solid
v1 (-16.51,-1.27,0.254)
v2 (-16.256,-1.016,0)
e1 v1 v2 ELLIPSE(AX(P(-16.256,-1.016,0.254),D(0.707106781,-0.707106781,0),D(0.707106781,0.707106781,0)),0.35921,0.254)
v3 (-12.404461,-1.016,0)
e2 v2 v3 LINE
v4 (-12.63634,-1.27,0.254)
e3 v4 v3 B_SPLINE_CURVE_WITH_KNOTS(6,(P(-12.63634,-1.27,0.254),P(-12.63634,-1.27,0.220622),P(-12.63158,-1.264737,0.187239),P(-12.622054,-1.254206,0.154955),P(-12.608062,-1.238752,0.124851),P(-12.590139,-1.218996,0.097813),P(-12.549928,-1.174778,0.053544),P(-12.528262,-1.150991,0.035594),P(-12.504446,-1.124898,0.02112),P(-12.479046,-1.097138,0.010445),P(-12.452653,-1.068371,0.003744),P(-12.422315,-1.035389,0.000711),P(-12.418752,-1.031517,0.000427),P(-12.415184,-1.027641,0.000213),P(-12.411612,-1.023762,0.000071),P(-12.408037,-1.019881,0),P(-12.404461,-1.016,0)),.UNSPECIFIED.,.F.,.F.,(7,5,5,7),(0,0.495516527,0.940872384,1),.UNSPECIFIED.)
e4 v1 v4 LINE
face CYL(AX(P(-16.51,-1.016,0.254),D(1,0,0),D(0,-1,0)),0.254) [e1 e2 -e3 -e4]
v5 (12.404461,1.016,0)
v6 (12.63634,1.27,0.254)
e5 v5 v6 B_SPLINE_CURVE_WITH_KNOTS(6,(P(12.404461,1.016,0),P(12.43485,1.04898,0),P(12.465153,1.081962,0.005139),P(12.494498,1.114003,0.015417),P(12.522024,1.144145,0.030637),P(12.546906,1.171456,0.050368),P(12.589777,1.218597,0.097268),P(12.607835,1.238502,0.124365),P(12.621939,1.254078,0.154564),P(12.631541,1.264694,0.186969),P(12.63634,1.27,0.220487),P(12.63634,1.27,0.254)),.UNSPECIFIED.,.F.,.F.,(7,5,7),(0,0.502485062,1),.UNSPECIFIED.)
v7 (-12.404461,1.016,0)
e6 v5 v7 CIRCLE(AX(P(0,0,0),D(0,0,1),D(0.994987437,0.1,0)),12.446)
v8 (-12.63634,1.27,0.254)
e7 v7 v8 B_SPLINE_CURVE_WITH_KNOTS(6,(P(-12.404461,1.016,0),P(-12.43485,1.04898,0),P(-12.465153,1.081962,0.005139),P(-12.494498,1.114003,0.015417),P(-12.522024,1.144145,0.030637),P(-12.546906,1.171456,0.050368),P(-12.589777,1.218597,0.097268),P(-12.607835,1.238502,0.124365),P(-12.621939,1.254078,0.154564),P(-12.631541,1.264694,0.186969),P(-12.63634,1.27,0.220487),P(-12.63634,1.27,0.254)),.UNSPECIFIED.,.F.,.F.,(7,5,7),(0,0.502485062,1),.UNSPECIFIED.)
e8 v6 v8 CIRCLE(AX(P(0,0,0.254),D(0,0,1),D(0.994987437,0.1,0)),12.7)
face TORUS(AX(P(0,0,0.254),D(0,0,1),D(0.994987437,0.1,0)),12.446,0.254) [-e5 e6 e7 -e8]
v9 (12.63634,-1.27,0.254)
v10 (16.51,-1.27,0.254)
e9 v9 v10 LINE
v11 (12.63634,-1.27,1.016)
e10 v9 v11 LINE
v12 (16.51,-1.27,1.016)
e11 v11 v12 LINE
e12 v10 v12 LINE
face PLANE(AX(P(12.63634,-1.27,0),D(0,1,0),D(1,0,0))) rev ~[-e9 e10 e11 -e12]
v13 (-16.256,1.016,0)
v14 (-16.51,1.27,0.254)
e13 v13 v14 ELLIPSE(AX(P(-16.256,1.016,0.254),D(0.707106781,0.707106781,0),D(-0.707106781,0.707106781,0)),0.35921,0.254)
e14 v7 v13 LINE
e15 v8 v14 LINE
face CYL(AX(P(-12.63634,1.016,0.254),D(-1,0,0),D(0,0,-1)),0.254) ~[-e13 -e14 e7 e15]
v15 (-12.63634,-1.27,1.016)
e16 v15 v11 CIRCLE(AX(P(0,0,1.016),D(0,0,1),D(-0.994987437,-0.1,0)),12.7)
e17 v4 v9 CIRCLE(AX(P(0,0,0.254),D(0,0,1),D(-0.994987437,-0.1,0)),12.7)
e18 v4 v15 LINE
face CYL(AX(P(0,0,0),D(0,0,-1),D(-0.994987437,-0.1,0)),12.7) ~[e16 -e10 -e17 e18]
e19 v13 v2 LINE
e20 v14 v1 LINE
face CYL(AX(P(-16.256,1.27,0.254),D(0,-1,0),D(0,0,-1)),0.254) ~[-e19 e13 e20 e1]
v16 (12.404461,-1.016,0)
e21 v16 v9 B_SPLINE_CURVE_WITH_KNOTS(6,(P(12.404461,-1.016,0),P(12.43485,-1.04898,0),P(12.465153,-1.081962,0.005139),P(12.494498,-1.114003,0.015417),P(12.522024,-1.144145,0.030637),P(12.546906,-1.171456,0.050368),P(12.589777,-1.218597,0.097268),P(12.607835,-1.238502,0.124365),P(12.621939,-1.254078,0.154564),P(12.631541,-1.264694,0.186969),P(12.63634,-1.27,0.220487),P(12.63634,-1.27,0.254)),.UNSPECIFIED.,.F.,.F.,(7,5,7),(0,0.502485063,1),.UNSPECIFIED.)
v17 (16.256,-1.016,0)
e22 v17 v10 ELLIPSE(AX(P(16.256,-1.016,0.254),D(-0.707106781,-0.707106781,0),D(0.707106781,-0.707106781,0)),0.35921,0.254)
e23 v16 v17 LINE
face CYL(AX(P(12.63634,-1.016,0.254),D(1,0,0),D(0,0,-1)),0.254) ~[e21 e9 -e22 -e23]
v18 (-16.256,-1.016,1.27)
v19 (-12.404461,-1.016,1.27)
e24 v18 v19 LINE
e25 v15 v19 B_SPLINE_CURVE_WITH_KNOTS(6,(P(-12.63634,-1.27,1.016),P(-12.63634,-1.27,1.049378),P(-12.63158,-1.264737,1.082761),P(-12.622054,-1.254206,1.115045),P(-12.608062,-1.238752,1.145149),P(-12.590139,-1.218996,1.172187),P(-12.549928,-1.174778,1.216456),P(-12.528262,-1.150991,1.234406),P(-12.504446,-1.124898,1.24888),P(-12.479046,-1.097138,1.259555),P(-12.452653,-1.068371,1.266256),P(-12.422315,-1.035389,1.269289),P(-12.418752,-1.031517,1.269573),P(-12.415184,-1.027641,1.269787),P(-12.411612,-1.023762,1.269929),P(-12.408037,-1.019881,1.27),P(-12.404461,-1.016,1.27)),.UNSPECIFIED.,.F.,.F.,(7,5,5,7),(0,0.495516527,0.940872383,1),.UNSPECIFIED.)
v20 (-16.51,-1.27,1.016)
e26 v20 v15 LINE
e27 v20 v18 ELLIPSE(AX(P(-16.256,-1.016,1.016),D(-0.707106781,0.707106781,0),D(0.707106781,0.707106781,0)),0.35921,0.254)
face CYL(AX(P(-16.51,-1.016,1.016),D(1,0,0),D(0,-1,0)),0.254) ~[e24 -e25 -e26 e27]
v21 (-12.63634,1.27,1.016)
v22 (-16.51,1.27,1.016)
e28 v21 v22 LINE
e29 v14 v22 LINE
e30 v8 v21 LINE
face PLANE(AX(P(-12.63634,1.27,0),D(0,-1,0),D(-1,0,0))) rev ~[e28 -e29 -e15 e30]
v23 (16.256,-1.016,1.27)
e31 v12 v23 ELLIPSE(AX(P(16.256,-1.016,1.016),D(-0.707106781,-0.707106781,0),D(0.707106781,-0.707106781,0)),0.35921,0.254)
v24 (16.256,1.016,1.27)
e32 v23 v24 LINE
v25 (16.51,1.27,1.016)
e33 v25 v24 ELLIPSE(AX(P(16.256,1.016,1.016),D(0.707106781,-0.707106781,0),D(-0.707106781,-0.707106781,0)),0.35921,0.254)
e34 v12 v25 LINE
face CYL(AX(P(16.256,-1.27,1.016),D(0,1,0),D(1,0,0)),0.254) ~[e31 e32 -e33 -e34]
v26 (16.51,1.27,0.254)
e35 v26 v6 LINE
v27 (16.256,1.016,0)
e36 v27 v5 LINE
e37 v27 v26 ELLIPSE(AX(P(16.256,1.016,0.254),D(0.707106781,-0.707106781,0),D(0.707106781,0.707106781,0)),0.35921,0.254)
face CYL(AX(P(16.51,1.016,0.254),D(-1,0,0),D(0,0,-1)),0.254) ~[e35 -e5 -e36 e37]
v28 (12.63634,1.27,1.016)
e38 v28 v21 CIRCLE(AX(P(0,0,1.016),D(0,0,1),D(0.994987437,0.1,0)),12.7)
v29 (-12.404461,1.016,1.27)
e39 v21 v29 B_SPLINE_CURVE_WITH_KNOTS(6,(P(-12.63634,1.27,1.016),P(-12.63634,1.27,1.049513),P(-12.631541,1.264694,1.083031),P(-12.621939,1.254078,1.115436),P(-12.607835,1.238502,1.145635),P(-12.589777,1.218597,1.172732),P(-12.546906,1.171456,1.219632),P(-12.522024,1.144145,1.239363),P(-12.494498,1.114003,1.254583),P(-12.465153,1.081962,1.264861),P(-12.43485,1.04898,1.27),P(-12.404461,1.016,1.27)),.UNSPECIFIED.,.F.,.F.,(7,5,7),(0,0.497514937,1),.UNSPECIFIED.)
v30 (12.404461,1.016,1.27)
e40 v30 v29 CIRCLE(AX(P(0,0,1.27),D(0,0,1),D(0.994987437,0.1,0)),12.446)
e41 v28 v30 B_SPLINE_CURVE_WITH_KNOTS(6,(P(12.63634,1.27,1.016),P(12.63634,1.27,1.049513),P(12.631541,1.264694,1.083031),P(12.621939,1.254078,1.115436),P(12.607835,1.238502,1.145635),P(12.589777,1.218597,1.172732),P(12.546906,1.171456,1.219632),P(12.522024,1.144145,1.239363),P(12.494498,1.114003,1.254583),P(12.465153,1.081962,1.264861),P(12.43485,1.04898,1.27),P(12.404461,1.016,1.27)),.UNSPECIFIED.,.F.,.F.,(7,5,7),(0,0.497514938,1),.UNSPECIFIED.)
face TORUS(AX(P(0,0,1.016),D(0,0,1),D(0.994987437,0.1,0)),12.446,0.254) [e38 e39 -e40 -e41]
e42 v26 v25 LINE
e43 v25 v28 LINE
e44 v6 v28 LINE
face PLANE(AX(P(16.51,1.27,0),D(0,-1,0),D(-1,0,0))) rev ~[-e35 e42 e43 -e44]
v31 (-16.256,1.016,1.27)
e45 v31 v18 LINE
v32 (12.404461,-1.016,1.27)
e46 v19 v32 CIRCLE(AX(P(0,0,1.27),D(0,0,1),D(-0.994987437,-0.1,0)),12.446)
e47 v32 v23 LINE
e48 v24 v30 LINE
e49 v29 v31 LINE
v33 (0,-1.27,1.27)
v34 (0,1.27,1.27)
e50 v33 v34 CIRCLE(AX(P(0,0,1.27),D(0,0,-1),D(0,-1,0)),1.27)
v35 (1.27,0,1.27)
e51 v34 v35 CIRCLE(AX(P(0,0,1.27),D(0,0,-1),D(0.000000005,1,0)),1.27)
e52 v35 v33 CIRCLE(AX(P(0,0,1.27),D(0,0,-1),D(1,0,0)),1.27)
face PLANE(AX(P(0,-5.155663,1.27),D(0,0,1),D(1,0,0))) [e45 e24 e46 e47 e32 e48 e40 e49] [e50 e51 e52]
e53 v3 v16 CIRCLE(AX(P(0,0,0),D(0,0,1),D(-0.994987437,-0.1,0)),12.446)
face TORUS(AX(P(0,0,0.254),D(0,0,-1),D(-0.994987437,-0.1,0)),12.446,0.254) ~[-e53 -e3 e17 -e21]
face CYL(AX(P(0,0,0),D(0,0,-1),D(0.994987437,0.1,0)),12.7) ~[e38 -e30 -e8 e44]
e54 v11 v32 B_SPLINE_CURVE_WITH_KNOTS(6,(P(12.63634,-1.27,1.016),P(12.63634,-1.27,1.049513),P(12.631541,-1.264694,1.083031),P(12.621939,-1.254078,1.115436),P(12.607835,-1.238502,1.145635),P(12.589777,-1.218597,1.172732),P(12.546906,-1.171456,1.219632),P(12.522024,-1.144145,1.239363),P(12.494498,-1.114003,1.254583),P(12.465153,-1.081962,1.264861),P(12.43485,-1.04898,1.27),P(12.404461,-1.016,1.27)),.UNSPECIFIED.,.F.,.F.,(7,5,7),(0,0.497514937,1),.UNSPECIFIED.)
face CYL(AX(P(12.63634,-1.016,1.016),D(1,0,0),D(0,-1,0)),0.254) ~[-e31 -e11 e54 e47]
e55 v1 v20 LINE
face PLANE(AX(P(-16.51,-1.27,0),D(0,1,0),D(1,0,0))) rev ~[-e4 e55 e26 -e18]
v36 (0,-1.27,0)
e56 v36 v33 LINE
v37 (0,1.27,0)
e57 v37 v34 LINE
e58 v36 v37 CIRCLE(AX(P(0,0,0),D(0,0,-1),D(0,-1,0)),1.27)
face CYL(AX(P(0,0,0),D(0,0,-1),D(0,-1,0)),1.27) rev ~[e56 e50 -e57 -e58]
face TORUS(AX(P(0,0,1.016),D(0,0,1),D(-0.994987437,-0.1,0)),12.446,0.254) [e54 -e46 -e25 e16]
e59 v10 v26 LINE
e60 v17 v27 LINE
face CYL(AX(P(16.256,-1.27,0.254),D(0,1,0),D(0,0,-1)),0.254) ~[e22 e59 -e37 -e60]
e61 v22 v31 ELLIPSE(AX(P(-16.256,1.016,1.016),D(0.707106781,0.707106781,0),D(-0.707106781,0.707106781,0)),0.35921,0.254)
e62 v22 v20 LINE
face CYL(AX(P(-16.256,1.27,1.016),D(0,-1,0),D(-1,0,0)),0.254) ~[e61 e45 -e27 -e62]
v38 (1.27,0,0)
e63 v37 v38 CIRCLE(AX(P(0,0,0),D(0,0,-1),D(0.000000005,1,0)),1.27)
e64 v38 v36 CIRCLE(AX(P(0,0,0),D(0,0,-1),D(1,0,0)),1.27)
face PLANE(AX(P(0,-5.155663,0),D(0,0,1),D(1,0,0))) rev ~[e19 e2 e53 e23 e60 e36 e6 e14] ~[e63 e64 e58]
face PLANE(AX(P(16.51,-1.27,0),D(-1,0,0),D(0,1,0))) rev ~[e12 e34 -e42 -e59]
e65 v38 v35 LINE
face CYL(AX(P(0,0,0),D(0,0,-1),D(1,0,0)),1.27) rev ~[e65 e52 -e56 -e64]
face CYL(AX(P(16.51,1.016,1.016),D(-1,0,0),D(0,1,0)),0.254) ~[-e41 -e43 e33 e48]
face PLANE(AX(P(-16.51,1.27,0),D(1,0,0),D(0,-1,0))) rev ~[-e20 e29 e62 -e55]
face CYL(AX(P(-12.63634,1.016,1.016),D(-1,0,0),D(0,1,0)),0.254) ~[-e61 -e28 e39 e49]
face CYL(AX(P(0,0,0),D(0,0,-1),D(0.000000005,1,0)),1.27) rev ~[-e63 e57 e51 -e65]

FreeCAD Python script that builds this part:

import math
import FreeCAD as App
import Part
import Sketcher
Q = App.Units.Quantity


def edges_at(feature, points):
    """Names of the edges that pass closest to the given points."""
    edges = feature.Shape.Edges
    near = lambda p: min(range(len(edges)), key=lambda i: edges[i].distToShape(Part.Vertex(*p))[0])
    return sorted({f"Edge{near(p) + 1}" for p in points})

doc = App.newDocument("Part")
body = doc.addObject("PartDesign::Body", "Body")

# Sketch on XY plane
sketch1 = body.newObject("Sketcher::SketchObject", "Sketch")
sketch1.AttachmentSupport = (doc.getObject("XY_Plane"), [""])
sketch1.MapMode = "FlatFace"
sketch1.addGeometry(Part.ArcOfCircle(Part.Circle(App.Vector(0, 0, 0), App.Vector(0, 0, 1), 12.7), math.radians(-174), math.radians(-6)), False)
sketch1.addGeometry(Part.LineSegment(App.Vector(12.6, -1.3, 0), App.Vector(16.5, -1.3, 0)), False)
sketch1.addGeometry(Part.LineSegment(App.Vector(16.5, -1.3, 0), App.Vector(16.5, 1.3, 0)), False)
sketch1.addGeometry(Part.LineSegment(App.Vector(16.5, 1.3, 0), App.Vector(12.6, 1.3, 0)), False)
sketch1.addGeometry(Part.ArcOfCircle(Part.Circle(App.Vector(0, 0, 0), App.Vector(0, 0, 1), 12.7), math.radians(6), math.radians(174)), False)
sketch1.addGeometry(Part.LineSegment(App.Vector(-12.6, 1.3, 0), App.Vector(-16.5, 1.3, 0)), False)
sketch1.addGeometry(Part.LineSegment(App.Vector(-16.5, 1.3, 0), App.Vector(-16.5, -1.3, 0)), False)
sketch1.addGeometry(Part.LineSegment(App.Vector(-16.5, -1.3, 0), App.Vector(-12.6, -1.3, 0)), False)
sketch1.addGeometry(Part.ArcOfCircle(Part.Circle(App.Vector(0, 0, 0), App.Vector(0, 0, 1), 1.3), math.radians(90), math.radians(270)), False)
sketch1.addGeometry(Part.ArcOfCircle(Part.Circle(App.Vector(0, 0, 0), App.Vector(0, 0, 1), 1.3), math.radians(0), math.radians(90)), False)
sketch1.addGeometry(Part.ArcOfCircle(Part.Circle(App.Vector(0, 0, 0), App.Vector(0, 0, 1), 1.3), math.radians(-90), math.radians(0)), False)
sketch1.addConstraint(Sketcher.Constraint("Coincident", 0, 2, 1, 1))
sketch1.addConstraint(Sketcher.Constraint("Coincident", 1, 2, 2, 1))
sketch1.addConstraint(Sketcher.Constraint("Coincident", 2, 2, 3, 1))
sketch1.addConstraint(Sketcher.Constraint("Coincident", 3, 2, 4, 1))
sketch1.addConstraint(Sketcher.Constraint("Coincident", 4, 2, 5, 1))
sketch1.addConstraint(Sketcher.Constraint("Coincident", 5, 2, 6, 1))
sketch1.addConstraint(Sketcher.Constraint("Coincident", 6, 2, 7, 1))
sketch1.addConstraint(Sketcher.Constraint("Coincident", 7, 2, 0, 1))
sketch1.addConstraint(Sketcher.Constraint("Tangent", 8, 1, 9, 2))
sketch1.addConstraint(Sketcher.Constraint("Tangent", 9, 1, 10, 2))
sketch1.addConstraint(Sketcher.Constraint("Tangent", 10, 1, 8, 2))
sketch1.addConstraint(Sketcher.Constraint("Horizontal", 1))
sketch1.addConstraint(Sketcher.Constraint("Vertical", 2))
sketch1.addConstraint(Sketcher.Constraint("Horizontal", 3))
sketch1.addConstraint(Sketcher.Constraint("Horizontal", 5))
sketch1.addConstraint(Sketcher.Constraint("Vertical", 6))
sketch1.addConstraint(Sketcher.Constraint("Horizontal", 7))
sketch1.addConstraint(Sketcher.Constraint("Coincident", 0, 3, -1, 1))
sketch1.addConstraint(Sketcher.Constraint("Coincident", 4, 3, -1, 1))
sketch1.addConstraint(Sketcher.Constraint("Coincident", 8, 3, -1, 1))
sketch1.addConstraint(Sketcher.Constraint("Equal", 0, 4))
sketch1.addConstraint(Sketcher.Constraint("Symmetric", 1, 2, 5, 2, -1, 1))
sketch1.addConstraint(Sketcher.Constraint("PointOnObject", 8, 1, -2))
sketch1.addConstraint(Sketcher.Constraint("PointOnObject", 9, 1, -1))
sketch1.addConstraint(Sketcher.Constraint("PointOnObject", 10, 1, -2))
sketch1.addConstraint(Sketcher.Constraint("Horizontal", 3, 2, 4, 2))
sketch1.addConstraint(Sketcher.Constraint("Horizontal", 1, 2, 6, 2))
sketch1.addConstraint(Sketcher.Constraint("Horizontal", 5, 2, 8, 1))
sketch1.addConstraint(Sketcher.Constraint("Radius", 0, Q("0.5 in")))
sketch1.addConstraint(Sketcher.Constraint("Radius", 8, Q("0.05 in")))
sketch1.addConstraint(Sketcher.Constraint("DistanceX", -1, 1, 1, 2, Q("0.65 in")))
pad1 = body.newObject("PartDesign::Pad", "Pad")
pad1.Profile = sketch1
pad1.Length = Q("0.05 in")
doc.recompute()

fillet = body.newObject("PartDesign::Fillet", "Fillet")
fillet.Base = (pad1, edges_at(pad1, [
    (0, 12.7, 1.27),
    (-14.573, 1.27, 1.27),
    (-14.573, -1.27, 1.27),
    (0, -12.7, 1.27),
    (-16.51, 0, 1.27),
    (14.573, 1.27, 1.27),
    (14.573, -1.27, 1.27),
    (16.51, 0, 1.27),
]))
fillet.Radius = Q("0.01 in")
doc.recompute()

fillet2 = body.newObject("PartDesign::Fillet", "Fillet001")
fillet2.Base = (fillet, edges_at(fillet, [
    (14.573, -1.27, 0),
    (16.51, 0, 0),
    (14.573, 1.27, 0),
    (0, 12.7, 0),
    (-14.573, 1.27, 0),
    (-14.573, -1.27, 0),
    (0, -12.7, 0),
    (-16.51, 0, 0),
]))
fillet2.Radius = Q("0.01 in")

doc.recompute()
